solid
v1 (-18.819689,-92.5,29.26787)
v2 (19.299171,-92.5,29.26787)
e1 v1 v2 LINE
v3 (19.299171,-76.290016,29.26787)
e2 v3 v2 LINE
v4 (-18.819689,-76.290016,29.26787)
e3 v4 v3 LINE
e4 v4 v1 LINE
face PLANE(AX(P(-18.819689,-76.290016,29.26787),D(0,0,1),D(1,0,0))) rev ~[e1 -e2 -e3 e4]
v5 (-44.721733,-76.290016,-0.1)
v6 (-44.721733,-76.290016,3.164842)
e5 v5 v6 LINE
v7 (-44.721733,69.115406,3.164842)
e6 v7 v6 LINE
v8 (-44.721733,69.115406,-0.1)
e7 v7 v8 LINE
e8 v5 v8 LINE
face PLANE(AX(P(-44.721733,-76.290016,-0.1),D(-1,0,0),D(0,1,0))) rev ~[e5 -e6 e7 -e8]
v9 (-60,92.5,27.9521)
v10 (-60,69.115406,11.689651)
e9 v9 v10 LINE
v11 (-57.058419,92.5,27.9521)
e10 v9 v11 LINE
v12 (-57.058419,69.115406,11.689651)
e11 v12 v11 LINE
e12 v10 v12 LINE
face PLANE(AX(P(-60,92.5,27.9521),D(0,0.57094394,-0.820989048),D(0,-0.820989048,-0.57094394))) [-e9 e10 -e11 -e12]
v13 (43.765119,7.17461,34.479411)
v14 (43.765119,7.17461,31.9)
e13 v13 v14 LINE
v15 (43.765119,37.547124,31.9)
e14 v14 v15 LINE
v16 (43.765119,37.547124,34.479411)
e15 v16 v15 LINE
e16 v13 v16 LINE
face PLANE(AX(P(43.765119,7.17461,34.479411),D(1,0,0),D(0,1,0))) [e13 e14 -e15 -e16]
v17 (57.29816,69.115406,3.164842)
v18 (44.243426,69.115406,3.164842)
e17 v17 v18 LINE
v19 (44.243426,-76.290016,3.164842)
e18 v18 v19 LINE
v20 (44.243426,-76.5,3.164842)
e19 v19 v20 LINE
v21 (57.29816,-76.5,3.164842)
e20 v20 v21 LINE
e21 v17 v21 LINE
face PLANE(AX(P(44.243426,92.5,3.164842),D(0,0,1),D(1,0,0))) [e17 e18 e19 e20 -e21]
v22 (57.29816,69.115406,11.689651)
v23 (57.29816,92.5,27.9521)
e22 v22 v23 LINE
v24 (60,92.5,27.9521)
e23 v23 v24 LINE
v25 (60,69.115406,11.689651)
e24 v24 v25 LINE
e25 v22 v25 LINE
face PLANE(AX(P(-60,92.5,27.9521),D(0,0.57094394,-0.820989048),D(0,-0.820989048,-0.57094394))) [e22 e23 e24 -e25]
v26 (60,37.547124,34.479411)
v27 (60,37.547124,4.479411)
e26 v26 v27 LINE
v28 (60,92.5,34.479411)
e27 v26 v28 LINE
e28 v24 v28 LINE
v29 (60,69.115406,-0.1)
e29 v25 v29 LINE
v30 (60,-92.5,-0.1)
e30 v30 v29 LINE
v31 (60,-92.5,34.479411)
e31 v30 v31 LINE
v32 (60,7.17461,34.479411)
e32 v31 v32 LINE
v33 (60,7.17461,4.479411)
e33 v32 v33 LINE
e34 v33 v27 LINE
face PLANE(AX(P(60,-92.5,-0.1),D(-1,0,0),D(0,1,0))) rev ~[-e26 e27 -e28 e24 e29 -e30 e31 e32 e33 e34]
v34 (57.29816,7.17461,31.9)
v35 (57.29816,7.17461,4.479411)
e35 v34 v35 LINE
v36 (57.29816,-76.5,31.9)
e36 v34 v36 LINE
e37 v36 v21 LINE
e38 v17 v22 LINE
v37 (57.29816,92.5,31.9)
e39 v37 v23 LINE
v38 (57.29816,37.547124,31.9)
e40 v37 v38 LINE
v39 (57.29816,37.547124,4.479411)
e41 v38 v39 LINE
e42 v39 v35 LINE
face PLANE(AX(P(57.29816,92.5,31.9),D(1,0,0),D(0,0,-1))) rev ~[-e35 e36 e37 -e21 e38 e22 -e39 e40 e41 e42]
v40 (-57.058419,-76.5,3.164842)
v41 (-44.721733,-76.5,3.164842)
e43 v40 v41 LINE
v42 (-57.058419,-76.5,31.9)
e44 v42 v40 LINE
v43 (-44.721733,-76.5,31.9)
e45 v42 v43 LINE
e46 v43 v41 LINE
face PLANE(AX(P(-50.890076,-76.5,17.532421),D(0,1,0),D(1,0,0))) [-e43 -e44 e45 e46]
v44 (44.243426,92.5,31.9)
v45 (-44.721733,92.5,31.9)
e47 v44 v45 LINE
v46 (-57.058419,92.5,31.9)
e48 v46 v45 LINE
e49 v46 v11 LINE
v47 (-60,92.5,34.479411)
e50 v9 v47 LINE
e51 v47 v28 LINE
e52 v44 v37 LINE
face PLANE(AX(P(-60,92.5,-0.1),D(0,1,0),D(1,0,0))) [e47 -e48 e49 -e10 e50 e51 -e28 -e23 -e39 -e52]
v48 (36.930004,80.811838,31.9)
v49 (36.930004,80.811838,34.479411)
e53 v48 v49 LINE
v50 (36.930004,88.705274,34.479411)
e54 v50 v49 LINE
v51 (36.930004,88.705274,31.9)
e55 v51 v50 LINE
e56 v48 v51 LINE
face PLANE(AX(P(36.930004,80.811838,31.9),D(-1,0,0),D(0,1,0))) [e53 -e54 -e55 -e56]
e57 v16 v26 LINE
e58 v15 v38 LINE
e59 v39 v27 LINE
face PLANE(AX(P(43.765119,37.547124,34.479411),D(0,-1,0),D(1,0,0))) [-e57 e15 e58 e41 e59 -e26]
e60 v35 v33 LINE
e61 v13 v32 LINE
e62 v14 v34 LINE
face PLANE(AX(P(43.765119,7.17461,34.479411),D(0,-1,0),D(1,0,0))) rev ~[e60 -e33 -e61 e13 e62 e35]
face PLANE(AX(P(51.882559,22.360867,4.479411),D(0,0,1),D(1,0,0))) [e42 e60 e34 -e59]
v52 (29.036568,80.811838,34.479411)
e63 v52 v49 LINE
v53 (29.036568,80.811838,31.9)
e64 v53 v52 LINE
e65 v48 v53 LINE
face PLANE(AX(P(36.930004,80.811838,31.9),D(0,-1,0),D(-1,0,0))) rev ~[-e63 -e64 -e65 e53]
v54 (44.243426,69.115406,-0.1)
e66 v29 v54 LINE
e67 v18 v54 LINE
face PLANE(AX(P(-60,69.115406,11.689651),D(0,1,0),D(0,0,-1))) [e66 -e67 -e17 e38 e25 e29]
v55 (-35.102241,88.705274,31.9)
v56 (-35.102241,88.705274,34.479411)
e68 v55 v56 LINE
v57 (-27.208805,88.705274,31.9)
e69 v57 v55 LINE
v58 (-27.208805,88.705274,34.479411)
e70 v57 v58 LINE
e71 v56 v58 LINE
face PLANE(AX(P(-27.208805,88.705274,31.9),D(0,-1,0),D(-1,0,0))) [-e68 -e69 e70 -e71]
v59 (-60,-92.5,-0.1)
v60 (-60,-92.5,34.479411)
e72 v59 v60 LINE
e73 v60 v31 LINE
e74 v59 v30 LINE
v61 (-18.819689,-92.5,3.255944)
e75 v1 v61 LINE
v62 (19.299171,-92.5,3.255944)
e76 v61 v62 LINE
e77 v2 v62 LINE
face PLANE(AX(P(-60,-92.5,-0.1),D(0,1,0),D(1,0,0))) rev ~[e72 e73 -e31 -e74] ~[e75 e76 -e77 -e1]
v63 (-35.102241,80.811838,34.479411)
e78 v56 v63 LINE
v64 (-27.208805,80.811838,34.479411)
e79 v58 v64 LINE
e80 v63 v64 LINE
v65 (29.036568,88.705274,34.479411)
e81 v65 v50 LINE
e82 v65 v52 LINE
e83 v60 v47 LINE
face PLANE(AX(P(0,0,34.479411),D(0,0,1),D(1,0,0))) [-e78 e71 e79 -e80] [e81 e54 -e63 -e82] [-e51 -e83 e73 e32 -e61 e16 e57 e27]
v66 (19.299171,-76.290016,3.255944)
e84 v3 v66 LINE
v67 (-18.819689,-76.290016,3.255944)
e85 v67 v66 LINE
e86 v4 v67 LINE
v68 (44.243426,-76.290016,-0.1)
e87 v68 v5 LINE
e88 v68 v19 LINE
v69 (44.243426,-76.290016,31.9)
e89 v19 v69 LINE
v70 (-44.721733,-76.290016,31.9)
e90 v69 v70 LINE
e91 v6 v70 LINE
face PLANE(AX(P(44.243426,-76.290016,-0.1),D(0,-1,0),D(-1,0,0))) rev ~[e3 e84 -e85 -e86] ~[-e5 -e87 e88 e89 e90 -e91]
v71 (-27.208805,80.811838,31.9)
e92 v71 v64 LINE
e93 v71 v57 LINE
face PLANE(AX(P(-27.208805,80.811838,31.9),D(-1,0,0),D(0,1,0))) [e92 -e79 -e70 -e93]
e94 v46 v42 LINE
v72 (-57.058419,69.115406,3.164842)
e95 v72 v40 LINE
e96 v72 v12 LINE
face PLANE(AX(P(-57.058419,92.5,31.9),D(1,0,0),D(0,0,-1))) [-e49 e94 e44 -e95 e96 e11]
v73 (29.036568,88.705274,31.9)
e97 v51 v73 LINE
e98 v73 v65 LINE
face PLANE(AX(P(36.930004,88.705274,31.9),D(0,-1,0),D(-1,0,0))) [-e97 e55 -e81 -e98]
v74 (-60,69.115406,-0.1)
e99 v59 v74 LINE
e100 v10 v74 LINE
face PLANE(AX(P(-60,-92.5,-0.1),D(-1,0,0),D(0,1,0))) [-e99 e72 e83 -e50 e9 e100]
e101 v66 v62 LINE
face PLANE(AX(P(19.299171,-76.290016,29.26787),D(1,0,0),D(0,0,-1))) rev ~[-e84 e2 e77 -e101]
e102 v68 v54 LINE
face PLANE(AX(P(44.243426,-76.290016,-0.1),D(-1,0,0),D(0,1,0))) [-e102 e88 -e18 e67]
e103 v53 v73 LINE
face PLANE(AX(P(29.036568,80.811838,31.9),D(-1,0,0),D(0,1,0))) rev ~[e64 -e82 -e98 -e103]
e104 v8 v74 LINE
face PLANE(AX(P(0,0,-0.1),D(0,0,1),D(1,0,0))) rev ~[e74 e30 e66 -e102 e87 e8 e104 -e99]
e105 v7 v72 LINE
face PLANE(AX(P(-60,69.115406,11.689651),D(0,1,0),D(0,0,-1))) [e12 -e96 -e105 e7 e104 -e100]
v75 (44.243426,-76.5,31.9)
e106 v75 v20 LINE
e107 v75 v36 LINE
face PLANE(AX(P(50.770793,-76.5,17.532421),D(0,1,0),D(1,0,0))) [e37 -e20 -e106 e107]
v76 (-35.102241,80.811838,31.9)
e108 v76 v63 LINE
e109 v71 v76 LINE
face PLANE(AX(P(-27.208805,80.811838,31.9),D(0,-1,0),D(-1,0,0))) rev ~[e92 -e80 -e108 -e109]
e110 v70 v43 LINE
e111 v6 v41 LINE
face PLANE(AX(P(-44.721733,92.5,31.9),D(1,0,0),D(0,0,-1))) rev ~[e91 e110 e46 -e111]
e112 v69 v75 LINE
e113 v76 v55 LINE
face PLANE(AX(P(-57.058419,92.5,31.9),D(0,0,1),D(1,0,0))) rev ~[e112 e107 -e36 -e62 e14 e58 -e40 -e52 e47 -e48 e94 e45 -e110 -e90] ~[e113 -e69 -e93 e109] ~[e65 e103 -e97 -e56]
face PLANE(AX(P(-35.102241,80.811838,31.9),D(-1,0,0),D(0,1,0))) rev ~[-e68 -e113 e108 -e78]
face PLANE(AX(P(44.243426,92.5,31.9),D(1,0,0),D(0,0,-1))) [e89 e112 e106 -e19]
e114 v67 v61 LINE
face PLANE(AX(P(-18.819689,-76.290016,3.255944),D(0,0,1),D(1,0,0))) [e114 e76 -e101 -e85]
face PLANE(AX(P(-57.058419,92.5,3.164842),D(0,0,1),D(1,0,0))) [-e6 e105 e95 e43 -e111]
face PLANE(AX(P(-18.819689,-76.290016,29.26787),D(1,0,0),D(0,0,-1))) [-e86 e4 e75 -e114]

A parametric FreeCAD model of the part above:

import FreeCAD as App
import Part
import Sketcher
from FreeCAD import Vector

doc = App.newDocument("Part")
body = doc.addObject("PartDesign::Body", "Body")

sketch1 = body.newObject("Sketcher::SketchObject", "Sketch")
sketch1.AttachmentSupport = (doc.getObject("XY_Plane"), [""])
sketch1.MapMode = "FlatFace"
sketch1.addGeometry(Part.LineSegment(Vector(-60, 92, 0), Vector(-60, -92, 0)), False)
sketch1.addGeometry(Part.LineSegment(Vector(-60, -92, 0), Vector(60, -92, 0)), False)
sketch1.addGeometry(Part.LineSegment(Vector(60, -92, 0), Vector(60, 92, 0)), False)
sketch1.addGeometry(Part.LineSegment(Vector(60, 92, 0), Vector(-60, 92, 0)), False)
sketch1.addConstraint(Sketcher.Constraint("Coincident", 0, 2, 1, 1))
sketch1.addConstraint(Sketcher.Constraint("Coincident", 1, 2, 2, 1))
sketch1.addConstraint(Sketcher.Constraint("Coincident", 2, 2, 3, 1))
sketch1.addConstraint(Sketcher.Constraint("Coincident", 3, 2, 0, 1))
sketch1.addConstraint(Sketcher.Constraint("Vertical", 0))
sketch1.addConstraint(Sketcher.Constraint("Horizontal", 1))
sketch1.addConstraint(Sketcher.Constraint("Vertical", 2))
sketch1.addConstraint(Sketcher.Constraint("Horizontal", 3))
sketch1.addConstraint(Sketcher.Constraint("Symmetric", 0, 2, 2, 2, -1, 1))
sketch1.addConstraint(Sketcher.Constraint("DistanceX", 1, 1, 1, 2, 120.0))
sketch1.addConstraint(Sketcher.Constraint("DistanceY", 0, 2, 0, 1, 185.0))
pad1 = body.newObject("PartDesign::Pad", "Pad")
pad1.Profile = sketch1
pad1.Type = "TwoLengths"
pad1.Length = 34.479411
pad1.Length2 = 0.1

sketch2 = body.newObject("Sketcher::SketchObject", "Sketch001")
sketch2.AttachmentSupport = (doc.getObject("XY_Plane"), [""])
sketch2.MapMode = "FlatFace"
sketch2.AttachmentOffset = App.Placement(Vector(0, 0, -0.1), App.Rotation())
sketch2.addGeometry(Part.LineSegment(Vector(44, 92, 0), Vector(44, -76, 0)), False)
sketch2.addGeometry(Part.LineSegment(Vector(44, -76, 0), Vector(-45, -76, 0)), False)
sketch2.addGeometry(Part.LineSegment(Vector(-45, -76, 0), Vector(-45, 92, 0)), False)
sketch2.addGeometry(Part.LineSegment(Vector(-45, 92, 0), Vector(44, 92, 0)), False)
sketch2.addConstraint(Sketcher.Constraint("Coincident", 0, 2, 1, 1))
sketch2.addConstraint(Sketcher.Constraint("Coincident", 1, 2, 2, 1))
sketch2.addConstraint(Sketcher.Constraint("Coincident", 2, 2, 3, 1))
sketch2.addConstraint(Sketcher.Constraint("Coincident", 3, 2, 0, 1))
sketch2.addConstraint(Sketcher.Constraint("Vertical", 0))
sketch2.addConstraint(Sketcher.Constraint("Horizontal", 1))
sketch2.addConstraint(Sketcher.Constraint("Vertical", 2))
sketch2.addConstraint(Sketcher.Constraint("Horizontal", 3))
sketch2.addConstraint(Sketcher.Constraint("DistanceY", -1, 1, 2, 2, 92.5))
sketch2.addConstraint(Sketcher.Constraint("DistanceX", 1, 2, 1, 1, 88.96516))
sketch2.addConstraint(Sketcher.Constraint("DistanceY", 0, 2, 0, 1, 168.790016))
sketch2.addConstraint(Sketcher.Constraint("DistanceX", -1, 1, 0, 2, 44.243426))
pocket1 = body.newObject("PartDesign::Pocket", "Pocket")
pocket1.Profile = sketch2
pocket1.Length = 32
pocket1.Reversed = True

sketch3 = body.newObject("Sketcher::SketchObject", "Sketch002")
sketch3.AttachmentSupport = (doc.getObject("XZ_Plane"), [""])
sketch3.MapMode = "FlatFace"
sketch3.AttachmentOffset = App.Placement(Vector(0, 0, 76.290016), App.Rotation())
sketch3.addGeometry(Part.LineSegment(Vector(-19, 3, 0), Vector(-19, 29, 0)), False)
sketch3.addGeometry(Part.LineSegment(Vector(-19, 29, 0), Vector(19, 29, 0)), False)
sketch3.addGeometry(Part.LineSegment(Vector(19, 29, 0), Vector(19, 3, 0)), False)
sketch3.addGeometry(Part.LineSegment(Vector(19, 3, 0), Vector(-19, 3, 0)), False)
sketch3.addConstraint(Sketcher.Constraint("Coincident", 0, 2, 1, 1))
sketch3.addConstraint(Sketcher.Constraint("Coincident", 1, 2, 2, 1))
sketch3.addConstraint(Sketcher.Constraint("Coincident", 2, 2, 3, 1))
sketch3.addConstraint(Sketcher.Constraint("Coincident", 3, 2, 0, 1))
sketch3.addConstraint(Sketcher.Constraint("Vertical", 0))
sketch3.addConstraint(Sketcher.Constraint("Horizontal", 1))
sketch3.addConstraint(Sketcher.Constraint("Vertical", 2))
sketch3.addConstraint(Sketcher.Constraint("Horizontal", 3))
sketch3.addConstraint(Sketcher.Constraint("DistanceX", 1, 1, 1, 2, 38.11886))
sketch3.addConstraint(Sketcher.Constraint("DistanceY", 0, 1, 0, 2, 26.011926))
sketch3.addConstraint(Sketcher.Constraint("DistanceX", 0, 2, -1, 1, 18.819689))
sketch3.addConstraint(Sketcher.Constraint("DistanceY", -1, 1, 0, 2, 29.26787))
pocket2 = body.newObject("PartDesign::Pocket", "Pocket001")
pocket2.Profile = sketch3
pocket2.Length = 32
pocket2.Reversed = True

sketch4 = body.newObject("Sketcher::SketchObject", "Sketch003")
sketch4.AttachmentSupport = (doc.getObject("XZ_Plane"), [""])
sketch4.MapMode = "FlatFace"
sketch4.AttachmentOffset = App.Placement(Vector(0, 0, -92.5), App.Rotation())
sketch4.addGeometry(Part.LineSegment(Vector(-57, 3, 0), Vector(-57, 32, 0)), False)
sketch4.addGeometry(Part.LineSegment(Vector(-57, 32, 0), Vector(-45, 32, 0)), False)
sketch4.addGeometry(Part.LineSegment(Vector(-45, 32, 0), Vector(-45, 3, 0)), False)
sketch4.addGeometry(Part.LineSegment(Vector(-45, 3, 0), Vector(-57, 3, 0)), False)
sketch4.addGeometry(Part.LineSegment(Vector(44, 3, 0), Vector(44, 32, 0)), False)
sketch4.addGeometry(Part.LineSegment(Vector(44, 32, 0), Vector(57, 32, 0)), False)
sketch4.addGeometry(Part.LineSegment(Vector(57, 32, 0), Vector(57, 3, 0)), False)
sketch4.addGeometry(Part.LineSegment(Vector(57, 3, 0), Vector(44, 3, 0)), False)
sketch4.addConstraint(Sketcher.Constraint("Coincident", 0, 2, 1, 1))
sketch4.addConstraint(Sketcher.Constraint("Coincident", 1, 2, 2, 1))
sketch4.addConstraint(Sketcher.Constraint("Coincident", 2, 2, 3, 1))
sketch4.addConstraint(Sketcher.Constraint("Coincident", 3, 2, 0, 1))
sketch4.addConstraint(Sketcher.Constraint("Coincident", 4, 2, 5, 1))
sketch4.addConstraint(Sketcher.Constraint("Coincident", 5, 2, 6, 1))
sketch4.addConstraint(Sketcher.Constraint("Coincident", 6, 2, 7, 1))
sketch4.addConstraint(Sketcher.Constraint("Coincident", 7, 2, 4, 1))
sketch4.addConstraint(Sketcher.Constraint("Vertical", 0))
sketch4.addConstraint(Sketcher.Constraint("Horizontal", 1))
sketch4.addConstraint(Sketcher.Constraint("Vertical", 2))
sketch4.addConstraint(Sketcher.Constraint("Horizontal", 3))
sketch4.addConstraint(Sketcher.Constraint("Vertical", 4))
sketch4.addConstraint(Sketcher.Constraint("Horizontal", 5))
sketch4.addConstraint(Sketcher.Constraint("Vertical", 6))
sketch4.addConstraint(Sketcher.Constraint("Horizontal", 7))
sketch4.addConstraint(Sketcher.Constraint("Horizontal", 1, 2, 4, 2))
sketch4.addConstraint(Sketcher.Constraint("Horizontal", 3, 2, 6, 2))
sketch4.addConstraint(Sketcher.Constraint("DistanceY", -1, 1, 0, 2, 31.9))
sketch4.addConstraint(Sketcher.Constraint("DistanceX", 1, 1, 1, 2, 12.336685))
sketch4.addConstraint(Sketcher.Constraint("DistanceX", 5, 1, 5, 2, 13.054734))
sketch4.addConstraint(Sketcher.Constraint("DistanceY", 0, 1, 0, 2, 28.735158))
sketch4.addConstraint(Sketcher.Constraint("DistanceX", 0, 2, -1, 1, 57.058419))
sketch4.addConstraint(Sketcher.Constraint("DistanceX", -1, 1, 5, 2, 57.29816))
pocket3 = body.newObject("PartDesign::Pocket", "Pocket002")
pocket3.Profile = sketch4
pocket3.Length = 169
pocket3.Reversed = True

sketch5 = body.newObject("Sketcher::SketchObject", "Sketch004")
sketch5.AttachmentSupport = (doc.getObject("YZ_Plane"), [""])
sketch5.MapMode = "FlatFace"
sketch5.AttachmentOffset = App.Placement(Vector(0, 0, 60), App.Rotation())
sketch5.addGeometry(Part.LineSegment(Vector(408, 247, 0), Vector(92, 28, 0)), False)
sketch5.addGeometry(Part.LineSegment(Vector(92, 28, 0), Vector(69, 12, 0)), False)
sketch5.addGeometry(Part.LineSegment(Vector(69, 12, 0), Vector(69, -384, 0)), False)
sketch5.addGeometry(Part.LineSegment(Vector(69, -384, 0), Vector(746, -748, 0)), False)
sketch5.addGeometry(Part.LineSegment(Vector(746, -748, 0), Vector(1085, -116, 0)), False)
sketch5.addGeometry(Part.LineSegment(Vector(1085, -116, 0), Vector(408, 247, 0)), False)
sketch5.addConstraint(Sketcher.Constraint("Coincident", 0, 2, 1, 1))
sketch5.addConstraint(Sketcher.Constraint("Coincident", 1, 2, 2, 1))
sketch5.addConstraint(Sketcher.Constraint("Coincident", 2, 2, 3, 1))
sketch5.addConstraint(Sketcher.Constraint("Coincident", 3, 2, 4, 1))
sketch5.addConstraint(Sketcher.Constraint("Coincident", 4, 2, 5, 1))
sketch5.addConstraint(Sketcher.Constraint("Coincident", 5, 2, 0, 1))
sketch5.addConstraint(Sketcher.Constraint("Vertical", 2))
sketch5.addConstraint(Sketcher.Constraint("Parallel", 0, 1))
sketch5.addConstraint(Sketcher.Constraint("Perpendicular", 3, 4))
sketch5.addConstraint(Sketcher.Constraint("Perpendicular", 4, 5))
sketch5.addConstraint(Sketcher.Constraint("Equal", 3, 5))
sketch5.addConstraint(Sketcher.Constraint("DistanceX", -1, 1, 0, 2, 92.5))
sketch5.addConstraint(Sketcher.Constraint("DistanceY", 2, 2, 2, 1, 396.019101))
sketch5.addConstraint(Sketcher.Constraint("Distance", 3, 768.4589))
sketch5.addConstraint(Sketcher.Constraint("DistanceY", -1, 1, 0, 2, 27.9521))
sketch5.addConstraint(Sketcher.Constraint("Distance", 0, 384.22945))
sketch5.addConstraint(Sketcher.Constraint("Distance", 1, 28.483442))
sketch5.addConstraint(Sketcher.Constraint("DistanceY", -1, 1, 1, 2, 11.689651))
pocket4 = body.newObject("PartDesign::Pocket", "Pocket003")
pocket4.Profile = sketch5
pocket4.Type = "ThroughAll"
pocket4.Midplane = True

sketch6 = body.newObject("Sketcher::SketchObject", "Sketch005")
sketch6.AttachmentSupport = (doc.getObject("XY_Plane"), [""])
sketch6.MapMode = "FlatFace"
sketch6.AttachmentOffset = App.Placement(Vector(0, 0, 31.9), App.Rotation())
sketch6.addGeometry(Part.LineSegment(Vector(37, 89, 0), Vector(37, 81, 0)), False)
sketch6.addGeometry(Part.LineSegment(Vector(37, 81, 0), Vector(29, 81, 0)), False)
sketch6.addGeometry(Part.LineSegment(Vector(29, 81, 0), Vector(29, 89, 0)), False)
sketch6.addGeometry(Part.LineSegment(Vector(29, 89, 0), Vector(37, 89, 0)), False)
sketch6.addGeometry(Part.LineSegment(Vector(-27, 89, 0), Vector(-27, 81, 0)), False)
sketch6.addGeometry(Part.LineSegment(Vector(-27, 81, 0), Vector(-35, 81, 0)), False)
sketch6.addGeometry(Part.LineSegment(Vector(-35, 81, 0), Vector(-35, 89, 0)), False)
sketch6.addGeometry(Part.LineSegment(Vector(-35, 89, 0), Vector(-27, 89, 0)), False)
sketch6.addConstraint(Sketcher.Constraint("Coincident", 0, 2, 1, 1))
sketch6.addConstraint(Sketcher.Constraint("Coincident", 1, 2, 2, 1))
sketch6.addConstraint(Sketcher.Constraint("Coincident", 2, 2, 3, 1))
sketch6.addConstraint(Sketcher.Constraint("Coincident", 3, 2, 0, 1))
sketch6.addConstraint(Sketcher.Constraint("Coincident", 4, 2, 5, 1))
sketch6.addConstraint(Sketcher.Constraint("Coincident", 5, 2, 6, 1))
sketch6.addConstraint(Sketcher.Constraint("Coincident", 6, 2, 7, 1))
sketch6.addConstraint(Sketcher.Constraint("Coincident", 7, 2, 4, 1))
sketch6.addConstraint(Sketcher.Constraint("Vertical", 0))
sketch6.addConstraint(Sketcher.Constraint("Horizontal", 1))
sketch6.addConstraint(Sketcher.Constraint("Vertical", 2))
sketch6.addConstraint(Sketcher.Constraint("Horizontal", 3))
sketch6.addConstraint(Sketcher.Constraint("Vertical", 4))
sketch6.addConstraint(Sketcher.Constraint("Horizontal", 5))
sketch6.addConstraint(Sketcher.Constraint("Vertical", 6))
sketch6.addConstraint(Sketcher.Constraint("Horizontal", 7))
sketch6.addConstraint(Sketcher.Constraint("Horizontal", 1, 2, 4, 2))
sketch6.addConstraint(Sketcher.Constraint("Horizontal", 3, 2, 6, 2))
sketch6.addConstraint(Sketcher.Constraint("Equal", 3, 5))
sketch6.addConstraint(Sketcher.Constraint("Equal", 7, 0))
sketch6.addConstraint(Sketcher.Constraint("DistanceX", 1, 2, 1, 1, 7.893436))
sketch6.addConstraint(Sketcher.Constraint("DistanceX", 5, 2, -1, 1, 35.102241))
sketch6.addConstraint(Sketcher.Constraint("DistanceX", 4, 2, 0, 2, 64.138809))
sketch6.addConstraint(Sketcher.Constraint("DistanceY", -1, 1, 0, 2, 80.811838))
pocket5 = body.newObject("PartDesign::Pocket", "Pocket004")
pocket5.Profile = sketch6
pocket5.Length = 120
pocket5.Reversed = True

sketch7 = body.newObject("Sketcher::SketchObject", "Sketch006")
sketch7.AttachmentSupport = (doc.getObject("XY_Plane"), [""])
sketch7.MapMode = "FlatFace"
sketch7.AttachmentOffset = App.Placement(Vector(0, 0, 34.479411), App.Rotation())
sketch7.addGeometry(Part.LineSegment(Vector(44, 38, 0), Vector(44, 7, 0)), False)
sketch7.addGeometry(Part.LineSegment(Vector(44, 7, 0), Vector(60, 7, 0)), False)
sketch7.addGeometry(Part.LineSegment(Vector(60, 7, 0), Vector(60, 38, 0)), False)
sketch7.addGeometry(Part.LineSegment(Vector(60, 38, 0), Vector(44, 38, 0)), False)
sketch7.addConstraint(Sketcher.Constraint("Coincident", 0, 2, 1, 1))
sketch7.addConstraint(Sketcher.Constraint("Coincident", 1, 2, 2, 1))
sketch7.addConstraint(Sketcher.Constraint("Coincident", 2, 2, 3, 1))
sketch7.addConstraint(Sketcher.Constraint("Coincident", 3, 2, 0, 1))
sketch7.addConstraint(Sketcher.Constraint("Vertical", 0))
sketch7.addConstraint(Sketcher.Constraint("Horizontal", 1))
sketch7.addConstraint(Sketcher.Constraint("Vertical", 2))
sketch7.addConstraint(Sketcher.Constraint("Horizontal", 3))
sketch7.addConstraint(Sketcher.Constraint("DistanceX", -1, 1, 1, 2, 60.0))
sketch7.addConstraint(Sketcher.Constraint("DistanceX", 1, 1, 1, 2, 16.234881))
sketch7.addConstraint(Sketcher.Constraint("DistanceY", 0, 2, 0, 1, 30.372514))
sketch7.addConstraint(Sketcher.Constraint("DistanceY", -1, 1, 0, 2, 7.17461))
pocket6 = body.newObject("PartDesign::Pocket", "Pocket005")
pocket6.Profile = sketch7
pocket6.Length = 30

doc.recompute()
